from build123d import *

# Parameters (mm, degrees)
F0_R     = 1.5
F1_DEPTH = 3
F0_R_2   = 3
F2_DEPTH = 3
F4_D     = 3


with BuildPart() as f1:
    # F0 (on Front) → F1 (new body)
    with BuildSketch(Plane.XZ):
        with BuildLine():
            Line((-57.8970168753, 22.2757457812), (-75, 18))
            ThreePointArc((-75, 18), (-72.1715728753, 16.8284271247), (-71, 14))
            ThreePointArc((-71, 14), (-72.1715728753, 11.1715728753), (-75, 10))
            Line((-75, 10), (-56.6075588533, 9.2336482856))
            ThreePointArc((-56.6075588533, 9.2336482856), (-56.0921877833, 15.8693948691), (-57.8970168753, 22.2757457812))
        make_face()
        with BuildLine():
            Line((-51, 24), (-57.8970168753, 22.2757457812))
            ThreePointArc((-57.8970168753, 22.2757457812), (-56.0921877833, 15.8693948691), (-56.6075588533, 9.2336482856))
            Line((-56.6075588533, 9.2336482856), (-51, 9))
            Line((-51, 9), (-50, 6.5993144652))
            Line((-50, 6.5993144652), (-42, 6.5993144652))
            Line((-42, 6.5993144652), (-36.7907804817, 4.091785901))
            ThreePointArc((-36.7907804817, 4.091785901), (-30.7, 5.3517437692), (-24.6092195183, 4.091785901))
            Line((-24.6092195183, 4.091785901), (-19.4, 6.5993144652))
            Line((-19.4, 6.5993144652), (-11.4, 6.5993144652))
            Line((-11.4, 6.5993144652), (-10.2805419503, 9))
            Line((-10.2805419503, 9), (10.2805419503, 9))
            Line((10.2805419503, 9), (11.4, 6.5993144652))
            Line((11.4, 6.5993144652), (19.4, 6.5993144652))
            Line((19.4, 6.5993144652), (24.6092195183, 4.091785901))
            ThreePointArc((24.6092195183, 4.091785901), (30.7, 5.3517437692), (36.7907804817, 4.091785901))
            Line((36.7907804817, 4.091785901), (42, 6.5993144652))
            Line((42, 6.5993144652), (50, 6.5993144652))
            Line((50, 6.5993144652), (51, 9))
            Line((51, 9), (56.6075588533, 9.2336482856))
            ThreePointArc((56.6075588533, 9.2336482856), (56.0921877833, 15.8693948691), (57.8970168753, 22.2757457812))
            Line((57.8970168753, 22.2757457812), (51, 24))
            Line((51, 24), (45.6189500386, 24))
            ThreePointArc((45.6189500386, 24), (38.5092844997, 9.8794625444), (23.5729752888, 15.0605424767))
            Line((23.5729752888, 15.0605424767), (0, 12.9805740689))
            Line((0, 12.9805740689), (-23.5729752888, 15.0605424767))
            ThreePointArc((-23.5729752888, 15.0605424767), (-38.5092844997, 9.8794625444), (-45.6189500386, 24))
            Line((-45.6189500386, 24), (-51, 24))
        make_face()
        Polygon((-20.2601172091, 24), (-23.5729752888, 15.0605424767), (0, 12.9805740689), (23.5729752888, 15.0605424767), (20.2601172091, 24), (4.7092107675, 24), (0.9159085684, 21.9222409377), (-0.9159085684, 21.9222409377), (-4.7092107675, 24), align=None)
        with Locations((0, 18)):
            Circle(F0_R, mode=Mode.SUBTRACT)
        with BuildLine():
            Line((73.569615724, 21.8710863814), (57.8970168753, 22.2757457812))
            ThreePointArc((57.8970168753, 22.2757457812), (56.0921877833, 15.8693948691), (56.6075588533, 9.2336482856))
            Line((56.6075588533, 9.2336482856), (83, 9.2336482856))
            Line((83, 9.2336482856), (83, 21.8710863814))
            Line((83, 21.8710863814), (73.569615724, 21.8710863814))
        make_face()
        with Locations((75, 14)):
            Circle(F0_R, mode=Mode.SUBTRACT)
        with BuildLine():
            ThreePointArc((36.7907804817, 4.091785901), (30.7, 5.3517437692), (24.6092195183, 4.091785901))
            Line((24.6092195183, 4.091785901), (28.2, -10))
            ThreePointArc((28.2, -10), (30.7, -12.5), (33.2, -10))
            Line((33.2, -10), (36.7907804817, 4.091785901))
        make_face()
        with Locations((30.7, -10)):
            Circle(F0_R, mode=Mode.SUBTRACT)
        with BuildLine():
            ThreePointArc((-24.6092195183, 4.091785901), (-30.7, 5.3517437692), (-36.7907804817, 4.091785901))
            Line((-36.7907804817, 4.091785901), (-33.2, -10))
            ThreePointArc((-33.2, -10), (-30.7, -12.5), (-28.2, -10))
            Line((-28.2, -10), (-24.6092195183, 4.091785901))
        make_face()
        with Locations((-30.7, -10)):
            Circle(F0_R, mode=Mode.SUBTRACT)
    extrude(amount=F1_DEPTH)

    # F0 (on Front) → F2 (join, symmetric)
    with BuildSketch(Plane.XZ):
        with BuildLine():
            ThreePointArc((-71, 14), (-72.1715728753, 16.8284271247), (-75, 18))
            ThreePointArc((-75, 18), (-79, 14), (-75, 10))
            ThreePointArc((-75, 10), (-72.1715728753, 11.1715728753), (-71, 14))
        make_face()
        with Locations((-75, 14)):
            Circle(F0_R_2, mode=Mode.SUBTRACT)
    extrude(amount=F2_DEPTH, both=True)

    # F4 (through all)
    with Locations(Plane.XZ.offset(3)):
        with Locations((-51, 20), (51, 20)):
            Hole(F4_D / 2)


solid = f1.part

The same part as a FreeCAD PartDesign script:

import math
import FreeCAD as App
import Part
import Sketcher
from FreeCAD import Vector
Q = App.Units.Quantity

doc = App.newDocument("Part")
body = doc.addObject("PartDesign::Body", "Body")

# Sketch on XZ plane
sketch1 = doc.addObject("Sketcher::SketchObject", "Sketch")
body.addObject(sketch1)
sketch1.AttachmentSupport = (doc.XZ_Plane, [""])
sketch1.MapMode = "FlatFace"
sketch1.addGeometry([
    Part.LineSegment(Vector(-57.9, 22.3, 0), Vector(-75, 18, 0)),  # 0
    Part.ArcOfCircle(Part.Circle(Vector(-75, 14, 0), Vector(0, 0, 1), 4), math.radians(0), math.radians(90)),  # 1
    Part.ArcOfCircle(Part.Circle(Vector(-75, 14, 0), Vector(0, 0, 1), 4), math.radians(-90), math.radians(0)),  # 2
    Part.LineSegment(Vector(-75, 10, 0), Vector(-56.6, 9.2, 0)),  # 3
    Part.LineSegment(Vector(-56.6, 9.2, 0), Vector(-51, 9, 0)),  # 4
    Part.LineSegment(Vector(-51, 9, 0), Vector(-50, 6.6, 0)),  # 5
    Part.LineSegment(Vector(-50, 6.6, 0), Vector(-42, 6.6, 0)),  # 6
    Part.LineSegment(Vector(-42, 6.6, 0), Vector(-36.8, 4.1, 0)),  # 7
    Part.LineSegment(Vector(-36.8, 4.1, 0), Vector(-33.2, -10, 0)),  # 8
    Part.ArcOfCircle(Part.Circle(Vector(-30.7, -10, 0), Vector(0, 0, 1), 2.5), math.radians(180), math.radians(360)),  # 9
    Part.LineSegment(Vector(-28.2, -10, 0), Vector(-24.6, 4.1, 0)),  # 10
    Part.LineSegment(Vector(-24.6, 4.1, 0), Vector(-19.4, 6.6, 0)),  # 11
    Part.LineSegment(Vector(-19.4, 6.6, 0), Vector(-11.4, 6.6, 0)),  # 12
    Part.LineSegment(Vector(-11.4, 6.6, 0), Vector(-10.3, 9, 0)),  # 13
    Part.LineSegment(Vector(-10.3, 9, 0), Vector(10.3, 9, 0)),  # 14
    Part.LineSegment(Vector(10.3, 9, 0), Vector(11.4, 6.6, 0)),  # 15
    Part.LineSegment(Vector(11.4, 6.6, 0), Vector(19.4, 6.6, 0)),  # 16
    Part.LineSegment(Vector(19.4, 6.6, 0), Vector(24.6, 4.1, 0)),  # 17
    Part.LineSegment(Vector(24.6, 4.1, 0), Vector(28.2, -10, 0)),  # 18
    Part.ArcOfCircle(Part.Circle(Vector(30.7, -10, 0), Vector(0, 0, 1), 2.5), math.radians(180), math.radians(360)),  # 19
    Part.LineSegment(Vector(33.2, -10, 0), Vector(36.8, 4.1, 0)),  # 20
    Part.LineSegment(Vector(36.8, 4.1, 0), Vector(42, 6.6, 0)),  # 21
    Part.LineSegment(Vector(42, 6.6, 0), Vector(50, 6.6, 0)),  # 22
    Part.LineSegment(Vector(50, 6.6, 0), Vector(51, 9, 0)),  # 23
    Part.LineSegment(Vector(51, 9, 0), Vector(56.6, 9.2, 0)),  # 24
    Part.LineSegment(Vector(56.6, 9.2, 0), Vector(83, 9.2, 0)),  # 25
    Part.LineSegment(Vector(83, 9.2, 0), Vector(83, 21.9, 0)),  # 26
    Part.LineSegment(Vector(83, 21.9, 0), Vector(73.6, 21.9, 0)),  # 27
    Part.LineSegment(Vector(73.6, 21.9, 0), Vector(57.9, 22.3, 0)),  # 28
    Part.LineSegment(Vector(57.9, 22.3, 0), Vector(51, 24, 0)),  # 29
    Part.LineSegment(Vector(51, 24, 0), Vector(45.6, 24, 0)),  # 30
    Part.ArcOfCircle(Part.Circle(Vector(34, 21, 0), Vector(0, 0, 1), 12), math.radians(-150), math.radians(14)),  # 31
    Part.LineSegment(Vector(23.6, 15.1, 0), Vector(20.3, 24, 0)),  # 32
    Part.LineSegment(Vector(20.3, 24, 0), Vector(4.7, 24, 0)),  # 33
    Part.LineSegment(Vector(4.7, 24, 0), Vector(0.9, 21.9, 0)),  # 34
    Part.LineSegment(Vector(0.9, 21.9, 0), Vector(-0.9, 21.9, 0)),  # 35
    Part.LineSegment(Vector(-0.9, 21.9, 0), Vector(-4.7, 24, 0)),  # 36
    Part.LineSegment(Vector(-4.7, 24, 0), Vector(-20.3, 24, 0)),  # 37
    Part.LineSegment(Vector(-20.3, 24, 0), Vector(-23.6, 15.1, 0)),  # 38
    Part.ArcOfCircle(Part.Circle(Vector(-34, 21, 0), Vector(0, 0, 1), 12), math.radians(166), math.radians(330)),  # 39
    Part.LineSegment(Vector(-45.6, 24, 0), Vector(-51, 24, 0)),  # 40
    Part.LineSegment(Vector(-51, 24, 0), Vector(-57.9, 22.3, 0)),  # 41
    Part.Circle(Vector(-30.7, -10, 0), Vector(0, 0, 1), 1.5),  # 42
    Part.Circle(Vector(30.7, -10, 0), Vector(0, 0, 1), 1.5),  # 43
    Part.Circle(Vector(0, 18, 0), Vector(0, 0, 1), 1.5),  # 44
    Part.Circle(Vector(75, 14, 0), Vector(0, 0, 1), 1.5),  # 45
], False)
sketch1.addConstraint([
    Sketcher.Constraint("Coincident", 0, 2, 1, 2),
    Sketcher.Constraint("Tangent", 1, 1, 2, 2),
    Sketcher.Constraint("Coincident", 2, 1, 3, 1),
    Sketcher.Constraint("Coincident", 3, 2, 4, 1),
    Sketcher.Constraint("Coincident", 4, 2, 5, 1),
    Sketcher.Constraint("Coincident", 5, 2, 6, 1),
    Sketcher.Constraint("Coincident", 6, 2, 7, 1),
    Sketcher.Constraint("Coincident", 7, 2, 8, 1),
    Sketcher.Constraint("Coincident", 8, 2, 9, 1),
    Sketcher.Constraint("Coincident", 9, 2, 10, 1),
    Sketcher.Constraint("Coincident", 10, 2, 11, 1),
    Sketcher.Constraint("Coincident", 11, 2, 12, 1),
    Sketcher.Constraint("Coincident", 12, 2, 13, 1),
    Sketcher.Constraint("Coincident", 13, 2, 14, 1),
    Sketcher.Constraint("Coincident", 14, 2, 15, 1),
    Sketcher.Constraint("Coincident", 15, 2, 16, 1),
    Sketcher.Constraint("Coincident", 16, 2, 17, 1),
    Sketcher.Constraint("Coincident", 17, 2, 18, 1),
    Sketcher.Constraint("Coincident", 18, 2, 19, 1),
    Sketcher.Constraint("Coincident", 19, 2, 20, 1),
    Sketcher.Constraint("Coincident", 20, 2, 21, 1),
    Sketcher.Constraint("Coincident", 21, 2, 22, 1),
    Sketcher.Constraint("Coincident", 22, 2, 23, 1),
    Sketcher.Constraint("Coincident", 23, 2, 24, 1),
    Sketcher.Constraint("Coincident", 24, 2, 25, 1),
    Sketcher.Constraint("Coincident", 25, 2, 26, 1),
    Sketcher.Constraint("Coincident", 26, 2, 27, 1),
    Sketcher.Constraint("Coincident", 27, 2, 28, 1),
    Sketcher.Constraint("Coincident", 28, 2, 29, 1),
    Sketcher.Constraint("Coincident", 29, 2, 30, 1),
    Sketcher.Constraint("Coincident", 30, 2, 31, 2),
    Sketcher.Constraint("Coincident", 31, 1, 32, 1),
    Sketcher.Constraint("Coincident", 32, 2, 33, 1),
    Sketcher.Constraint("Coincident", 33, 2, 34, 1),
    Sketcher.Constraint("Coincident", 34, 2, 35, 1),
    Sketcher.Constraint("Coincident", 35, 2, 36, 1),
    Sketcher.Constraint("Coincident", 36, 2, 37, 1),
    Sketcher.Constraint("Coincident", 37, 2, 38, 1),
    Sketcher.Constraint("Coincident", 38, 2, 39, 2),
    Sketcher.Constraint("Coincident", 39, 1, 40, 1),
    Sketcher.Constraint("Coincident", 40, 2, 41, 1),
    Sketcher.Constraint("Coincident", 41, 2, 0, 1),
    Sketcher.Constraint("Horizontal", 6),
    Sketcher.Constraint("Horizontal", 12),
    Sketcher.Constraint("Horizontal", 14),
    Sketcher.Constraint("Horizontal", 16),
    Sketcher.Constraint("Horizontal", 22),
    Sketcher.Constraint("Horizontal", 25),
    Sketcher.Constraint("Vertical", 26),
    Sketcher.Constraint("Horizontal", 27),
    Sketcher.Constraint("Horizontal", 30),
    Sketcher.Constraint("Horizontal", 33),
    Sketcher.Constraint("Horizontal", 35),
    Sketcher.Constraint("Horizontal", 37),
    Sketcher.Constraint("Horizontal", 40),
    Sketcher.Constraint("Coincident", 42, 3, 9, 3),
    Sketcher.Constraint("Coincident", 43, 3, 19, 3),
    Sketcher.Constraint("Equal", 1, 2),
    Sketcher.Constraint("Equal", 9, 19),
    Sketcher.Constraint("Equal", 31, 39),
    Sketcher.Constraint("Equal", 42, 43),
    Sketcher.Constraint("Equal", 43, 44),
    Sketcher.Constraint("Equal", 44, 45),
    Sketcher.Constraint("Symmetric", 9, 3, 19, 3, -2),
    Sketcher.Constraint("Symmetric", 31, 3, 39, 3, -2),
    Sketcher.Constraint("Symmetric", 1, 3, 45, 3, -2),
    Sketcher.Constraint("Symmetric", 12, 2, 15, 2, -2),
    Sketcher.Constraint("Symmetric", 10, 2, 17, 2, -2),
    Sketcher.Constraint("Symmetric", 7, 2, 20, 2, -2),
    Sketcher.Constraint("Symmetric", 6, 2, 21, 2, -2),
    Sketcher.Constraint("Symmetric", 4, 2, 23, 2, -2),
    Sketcher.Constraint("Symmetric", 3, 2, 24, 2, -2),
    Sketcher.Constraint("Symmetric", 33, 2, 36, 2, -2),
    Sketcher.Constraint("Symmetric", 29, 2, 40, 2, -2),
    Sketcher.Constraint("Symmetric", 28, 2, 41, 2, -2),
    Sketcher.Constraint("PointOnObject", 44, 3, -2),
    Sketcher.Constraint("Parallel", 3, 4),
    Sketcher.Constraint("Parallel", 7, 17),
    Sketcher.Constraint("Parallel", 8, 18),
    Sketcher.Constraint("Parallel", 10, 20),
    Sketcher.Constraint("Parallel", 11, 21),
    Sketcher.Constraint("Parallel", 0, 41),
    Sketcher.Constraint("Horizontal", 44, 3, 0, 2),
    Sketcher.Constraint("Horizontal", 45, 3, 1, 1),
    Sketcher.Constraint("Horizontal", 43, 3, 8, 2),
    Sketcher.Constraint("Horizontal", 8, 2, 9, 2),
    Sketcher.Constraint("Horizontal", 7, 2, 10, 2),
    Sketcher.Constraint("Horizontal", 6, 2, 11, 2),
    Sketcher.Constraint("Horizontal", 4, 2, 13, 2),
    Sketcher.Constraint("Horizontal", 9, 2, 18, 2),
    Sketcher.Constraint("Horizontal", 30, 2, 32, 2),
    Sketcher.Constraint("Horizontal", 31, 1, 38, 2),
    Sketcher.Constraint("Vertical", 2, 3, 0, 2),
    Sketcher.Constraint("Vertical", 0, 2, 2, 1),
    Sketcher.Constraint("Vertical", 23, 2, 29, 2),
    Sketcher.Constraint("Equal", 6, 12),
    Sketcher.Constraint("Equal", 16, 22),
    Sketcher.Constraint("Equal", 33, 37),
    Sketcher.Constraint("Equal", 13, 15),
    Sketcher.Constraint("Equal", 34, 36),
    Sketcher.Constraint("Diameter", 42, 3.0),
    Sketcher.Constraint("Radius", 1, 4.0),
    Sketcher.Constraint("Radius", 31, 12.0),
    Sketcher.Constraint("Radius", 9, 2.5),
    Sketcher.Constraint("DistanceX", 6, 1, 6, 2, 8.0),
    Sketcher.Constraint("Angle", 13, Q("65 deg")),
    Sketcher.Constraint("DistanceX", 1, 3, -1, 1, 75.0),
    Sketcher.Constraint("DistanceY", -1, 1, 1, 3, 14.0),
    Sketcher.Constraint("DistanceY", 9, 3, -1, 1, 10.0),
    Sketcher.Constraint("DistanceX", -1, 1, 31, 3, 34.0),
    Sketcher.Constraint("DistanceY", -1, 1, 31, 3, 21.0),
    Sketcher.Constraint("DistanceX", 4, 2, -1, 1, 51.0),
    Sketcher.Constraint("DistanceY", -1, 1, 4, 2, 9.0),
    Sketcher.Constraint("DistanceX", 5, 2, -1, 1, 50.0),
    Sketcher.Constraint("DistanceX", -1, 1, 25, 2, 83.0),
    Sketcher.Constraint("DistanceY", -1, 1, 29, 2, 24.0),
    Sketcher.Constraint("DistanceX", 9, 3, -1, 1, 30.7),
    Sketcher.Constraint("Distance", 3, 18.4084),
    Sketcher.Constraint("DistanceY", 26, 1, 26, 2, 12.637438),
    Sketcher.Constraint("DistanceX", 28, 2, 27, 2, 15.672599),
    Sketcher.Constraint("Distance", 0, 17.629351),
    Sketcher.Constraint("Distance", 7, 5.781321),
    Sketcher.Constraint("Distance", 8, 14.542081),
    Sketcher.Constraint("Distance", 32, 9.533569),
    Sketcher.Constraint("Distance", 34, 4.325069),
    Sketcher.Constraint("DistanceX", 14, 1, 14, 2, 20.561084),
    Sketcher.Constraint("DistanceX", 33, 2, 33, 1, 15.550906),
    Sketcher.Constraint("DistanceX", 35, 2, 35, 1, 1.831817),
    Sketcher.Constraint("DistanceX", -1, 1, 33, 2, 4.709211),
])
pad1 = doc.addObject("PartDesign::Pad", "Pad")
body.addObject(pad1)
pad1.Profile = sketch1
pad1.Length = 3

# Sketch on XZ plane
sketch2 = doc.addObject("Sketcher::SketchObject", "Sketch001")
body.addObject(sketch2)
sketch2.AttachmentSupport = (doc.XZ_Plane, [""])
sketch2.MapMode = "FlatFace"
sketch2.addGeometry([
    Part.ArcOfCircle(Part.Circle(Vector(-75, 14, 0), Vector(0, 0, 1), 4), math.radians(0), math.radians(90)),
    Part.ArcOfCircle(Part.Circle(Vector(-75, 14, 0), Vector(0, 0, 1), 4), math.radians(90), math.radians(270)),
    Part.ArcOfCircle(Part.Circle(Vector(-75, 14, 0), Vector(0, 0, 1), 4), math.radians(-90), math.radians(0)),
    Part.Circle(Vector(-75, 14, 0), Vector(0, 0, 1), 3),
], False)
sketch2.addConstraint([
    Sketcher.Constraint("Tangent", 0, 2, 1, 1),
    Sketcher.Constraint("Tangent", 1, 2, 2, 1),
    Sketcher.Constraint("Tangent", 2, 2, 0, 1),
    Sketcher.Constraint("Coincident", 3, 3, 0, 3),
    Sketcher.Constraint("Horizontal", 3, 3, 2, 2),
    Sketcher.Constraint("Vertical", 3, 3, 0, 2),
    Sketcher.Constraint("Vertical", 0, 2, 1, 2),
    Sketcher.Constraint("Diameter", 3, 6.0),
    Sketcher.Constraint("Radius", 0, 4.0),
    Sketcher.Constraint("DistanceX", 0, 3, -1, 1, 75.0),
    Sketcher.Constraint("DistanceY", -1, 1, 0, 3, 14.0),
])
pad2 = doc.addObject("PartDesign::Pad", "Pad001")
body.addObject(pad2)
pad2.Profile = sketch2
pad2.Length = 6
pad2.Midplane = True

# Sketch on XZ plane
sketch3 = doc.addObject("Sketcher::SketchObject", "Sketch002")
body.addObject(sketch3)
sketch3.AttachmentSupport = (doc.XZ_Plane, [""])
sketch3.MapMode = "FlatFace"
sketch3.AttachmentOffset = App.Placement(Vector(0, 0, 3), App.Rotation())
sketch3.addGeometry([
    Part.Circle(Vector(-51, 20, 0), Vector(0, 0, 1), 1.5),
    Part.Circle(Vector(51, 20, 0), Vector(0, 0, 1), 1.5),
], False)
sketch3.addConstraint([
    Sketcher.Constraint("Equal", 0, 1),
    Sketcher.Constraint("Symmetric", 0, 3, 1, 3, -2),
    Sketcher.Constraint("Diameter", 0, 3.0),
    Sketcher.Constraint("DistanceX", 0, 3, -1, 1, 51.0),
    Sketcher.Constraint("DistanceY", -1, 1, 0, 3, 20.0),
])
doc.recompute()
hole = doc.addObject("PartDesign::Hole", "Hole")
body.addObject(hole)
hole.Profile = sketch3
hole.ThreadType = "None"
hole.Diameter = 3
hole.DepthType = "ThroughAll"

doc.recompute()
